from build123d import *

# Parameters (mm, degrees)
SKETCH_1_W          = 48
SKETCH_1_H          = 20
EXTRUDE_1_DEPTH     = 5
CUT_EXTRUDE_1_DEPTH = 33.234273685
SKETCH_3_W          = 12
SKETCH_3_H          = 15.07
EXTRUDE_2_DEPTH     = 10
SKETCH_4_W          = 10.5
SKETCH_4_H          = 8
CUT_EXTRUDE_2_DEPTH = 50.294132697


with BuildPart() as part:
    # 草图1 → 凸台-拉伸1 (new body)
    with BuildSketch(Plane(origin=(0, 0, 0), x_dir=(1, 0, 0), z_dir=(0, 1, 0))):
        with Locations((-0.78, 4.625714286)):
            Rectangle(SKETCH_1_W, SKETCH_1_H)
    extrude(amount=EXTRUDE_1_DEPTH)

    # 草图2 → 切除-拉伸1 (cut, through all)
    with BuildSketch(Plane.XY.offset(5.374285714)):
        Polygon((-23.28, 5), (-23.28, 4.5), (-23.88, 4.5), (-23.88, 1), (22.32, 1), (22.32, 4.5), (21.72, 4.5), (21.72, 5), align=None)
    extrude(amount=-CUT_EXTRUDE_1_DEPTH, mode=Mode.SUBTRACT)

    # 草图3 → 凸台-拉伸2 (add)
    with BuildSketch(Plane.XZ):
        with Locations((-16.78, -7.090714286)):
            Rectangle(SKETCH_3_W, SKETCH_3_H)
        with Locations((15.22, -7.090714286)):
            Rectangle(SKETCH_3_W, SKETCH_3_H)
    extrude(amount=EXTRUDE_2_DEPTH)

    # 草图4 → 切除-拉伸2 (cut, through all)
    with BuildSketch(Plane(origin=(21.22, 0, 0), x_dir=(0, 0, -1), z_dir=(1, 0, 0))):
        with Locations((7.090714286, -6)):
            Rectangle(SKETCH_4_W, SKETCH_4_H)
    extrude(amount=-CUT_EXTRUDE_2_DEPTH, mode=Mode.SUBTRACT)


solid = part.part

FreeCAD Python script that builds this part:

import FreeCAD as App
import Part
import Sketcher
Q = App.Units.Quantity


def add_polygon(sketch, points):
    """Adds a closed chain of lines whose ends are joined by coincident constraints."""
    first, n = sketch.GeometryCount, len(points)
    for a, b in zip(points, points[1:] + points[:1]):
        sketch.addGeometry(Part.LineSegment(App.Vector(*a, 0), App.Vector(*b, 0)), False)
    for i in range(n):
        sketch.addConstraint(Sketcher.Constraint("Coincident", first + i, 2, first + (i + 1) % n, 1))

doc = App.newDocument("Part")
params = doc.addObject("Spreadsheet::Sheet", "Params")
for row, (alias, value) in enumerate([
    ("sketch1_width", "48 mm"),
    ("sketch1_height", "20 mm"),
    ("pad1_length", "5 mm"),
    ("sketch2_width", "45 mm"),
    ("sketch2_width2", "0.6 mm"),
    ("sketch2_height", "0.5 mm"),
    ("sketch2_height2", "3.5 mm"),
    ("sketch3_width", "12 mm"),
    ("sketch3_height", "15.07 mm"),
    ("pad2_length", "10 mm"),
    ("sketch4_width", "8 mm"),
    ("sketch4_height", "10.5 mm"),
], start=1):
    params.set(f"A{row}", alias)
    params.set(f"B{row}", "=" + value)
    params.setAlias(f"B{row}", alias)

body = doc.addObject("PartDesign::Body", "Body")

# Sketch on XZ plane
sketch1 = doc.addObject("Sketcher::SketchObject", "Sketch")
body.addObject(sketch1)
sketch1.AttachmentSupport = (doc.XZ_Plane, [""])
sketch1.MapMode = "FlatFace"
add_polygon(sketch1, [(-25, -15), (-25, 5), (23, 5), (23, -15)])  # lines 0-3
sketch1.addConstraint([
    Sketcher.Constraint("Vertical", 0),
    Sketcher.Constraint("Horizontal", 1),
    Sketcher.Constraint("Vertical", 2),
    Sketcher.Constraint("Horizontal", 3),
    Sketcher.Constraint("DistanceX", 1, 1, 1, 2, Q("48 mm")),
    Sketcher.Constraint("DistanceY", 0, 1, 0, 2, Q("20 mm")),
    Sketcher.Constraint("DistanceX", 0, 2, -1, 1, Q("24.78 mm")),
    Sketcher.Constraint("DistanceY", -1, 1, 0, 2, Q("5.374286 mm")),
])
sketch1.setExpression("Constraints[8]", "Params.sketch1_width")
sketch1.setExpression("Constraints[9]", "Params.sketch1_height")
pad1 = doc.addObject("PartDesign::Pad", "Pad")
body.addObject(pad1)
pad1.Profile = sketch1
pad1.setExpression("Length", "Params.pad1_length")
pad1.Reversed = True

# Sketch on XY plane
sketch2 = doc.addObject("Sketcher::SketchObject", "Sketch001")
body.addObject(sketch2)
sketch2.AttachmentSupport = (doc.XY_Plane, [""])
sketch2.MapMode = "FlatFace"
sketch2.AttachmentOffset = App.Placement(App.Vector(0, 0, 5.374286), App.Rotation())
add_polygon(sketch2, [(-23.3, 5), (-23.3, 4.5), (-23.9, 4.5), (-23.9, 1), (22.3, 1), (22.3, 4.5), (21.7, 4.5), (21.7, 5)])  # lines 0-7
sketch2.addConstraint([
    Sketcher.Constraint("Vertical", 0),
    Sketcher.Constraint("Horizontal", 1),
    Sketcher.Constraint("Vertical", 2),
    Sketcher.Constraint("Horizontal", 3),
    Sketcher.Constraint("Vertical", 4),
    Sketcher.Constraint("Horizontal", 5),
    Sketcher.Constraint("Vertical", 6),
    Sketcher.Constraint("Horizontal", 7),
    Sketcher.Constraint("Horizontal", 1, 2, 4, 2),
    Sketcher.Constraint("Equal", 1, 5),
    Sketcher.Constraint("DistanceX", 7, 2, 7, 1, Q("45 mm")),
    Sketcher.Constraint("DistanceX", 1, 2, 1, 1, Q("0.6 mm")),
    Sketcher.Constraint("DistanceY", 0, 2, 0, 1, Q("0.5 mm")),
    Sketcher.Constraint("DistanceY", 2, 2, 2, 1, Q("3.5 mm")),
    Sketcher.Constraint("DistanceY", -1, 1, 2, 2, Q("1 mm")),
    Sketcher.Constraint("DistanceX", 0, 2, -1, 1, Q("23.28 mm")),
])
sketch2.setExpression("Constraints[18]", "Params.sketch2_width")
sketch2.setExpression("Constraints[19]", "Params.sketch2_width2")
sketch2.setExpression("Constraints[20]", "Params.sketch2_height")
sketch2.setExpression("Constraints[21]", "Params.sketch2_height2")
pocket1 = doc.addObject("PartDesign::Pocket", "Pocket")
body.addObject(pocket1)
pocket1.Profile = sketch2
pocket1.Type = "ThroughAll"

# Sketch on XZ plane
sketch3 = doc.addObject("Sketcher::SketchObject", "Sketch002")
body.addObject(sketch3)
sketch3.AttachmentSupport = (doc.XZ_Plane, [""])
sketch3.MapMode = "FlatFace"
add_polygon(sketch3, [(-23, 0), (-23, -15), (-11, -15), (-11, 0)])  # lines 0-3
add_polygon(sketch3, [(9, 0), (9, -15), (21, -15), (21, 0)])  # lines 4-7
sketch3.addConstraint([
    Sketcher.Constraint("Vertical", 0),
    Sketcher.Constraint("Horizontal", 1),
    Sketcher.Constraint("Vertical", 2),
    Sketcher.Constraint("Horizontal", 3),
    Sketcher.Constraint("Vertical", 4),
    Sketcher.Constraint("Horizontal", 5),
    Sketcher.Constraint("Vertical", 6),
    Sketcher.Constraint("Horizontal", 7),
    Sketcher.Constraint("Horizontal", 1, 2, 4, 2),
    Sketcher.Constraint("Horizontal", 3, 2, 6, 2),
    Sketcher.Constraint("Equal", 3, 5),
    Sketcher.Constraint("DistanceX", 1, 1, 1, 2, Q("12 mm")),
    Sketcher.Constraint("DistanceX", 1, 2, 4, 2, Q("20 mm")),
    Sketcher.Constraint("DistanceY", 0, 2, 0, 1, Q("15.07 mm")),
    Sketcher.Constraint("DistanceX", 0, 2, -1, 1, Q("22.78 mm")),
    Sketcher.Constraint("DistanceY", 0, 2, -1, 1, Q("14.625714 mm")),
])
sketch3.setExpression("Constraints[19]", "Params.sketch3_width")
sketch3.setExpression("Constraints[21]", "Params.sketch3_height")
pad2 = doc.addObject("PartDesign::Pad", "Pad001")
body.addObject(pad2)
pad2.Profile = sketch3
pad2.setExpression("Length", "Params.pad2_length")

# Sketch on YZ plane
sketch4 = doc.addObject("Sketcher::SketchObject", "Sketch003")
body.addObject(sketch4)
sketch4.AttachmentSupport = (doc.YZ_Plane, [""])
sketch4.MapMode = "FlatFace"
sketch4.AttachmentOffset = App.Placement(App.Vector(0, 0, 21.22), App.Rotation())
add_polygon(sketch4, [(-2, -2), (-10, -2), (-10, -12), (-2, -12)])  # lines 0-3
sketch4.addConstraint([
    Sketcher.Constraint("Horizontal", 0),
    Sketcher.Constraint("Vertical", 1),
    Sketcher.Constraint("Horizontal", 2),
    Sketcher.Constraint("Vertical", 3),
    Sketcher.Constraint("DistanceX", 0, 2, 0, 1, Q("8 mm")),
    Sketcher.Constraint("DistanceY", 1, 2, 1, 1, Q("10.5 mm")),
    Sketcher.Constraint("DistanceX", 0, 2, -1, 1, Q("10 mm")),
    Sketcher.Constraint("DistanceY", 0, 2, -1, 1, Q("1.840714 mm")),
])
sketch4.setExpression("Constraints[8]", "Params.sketch4_width")
sketch4.setExpression("Constraints[9]", "Params.sketch4_height")
pocket2 = doc.addObject("PartDesign::Pocket", "Pocket001")
body.addObject(pocket2)
pocket2.Profile = sketch4
pocket2.Type = "ThroughAll"

doc.recompute()
